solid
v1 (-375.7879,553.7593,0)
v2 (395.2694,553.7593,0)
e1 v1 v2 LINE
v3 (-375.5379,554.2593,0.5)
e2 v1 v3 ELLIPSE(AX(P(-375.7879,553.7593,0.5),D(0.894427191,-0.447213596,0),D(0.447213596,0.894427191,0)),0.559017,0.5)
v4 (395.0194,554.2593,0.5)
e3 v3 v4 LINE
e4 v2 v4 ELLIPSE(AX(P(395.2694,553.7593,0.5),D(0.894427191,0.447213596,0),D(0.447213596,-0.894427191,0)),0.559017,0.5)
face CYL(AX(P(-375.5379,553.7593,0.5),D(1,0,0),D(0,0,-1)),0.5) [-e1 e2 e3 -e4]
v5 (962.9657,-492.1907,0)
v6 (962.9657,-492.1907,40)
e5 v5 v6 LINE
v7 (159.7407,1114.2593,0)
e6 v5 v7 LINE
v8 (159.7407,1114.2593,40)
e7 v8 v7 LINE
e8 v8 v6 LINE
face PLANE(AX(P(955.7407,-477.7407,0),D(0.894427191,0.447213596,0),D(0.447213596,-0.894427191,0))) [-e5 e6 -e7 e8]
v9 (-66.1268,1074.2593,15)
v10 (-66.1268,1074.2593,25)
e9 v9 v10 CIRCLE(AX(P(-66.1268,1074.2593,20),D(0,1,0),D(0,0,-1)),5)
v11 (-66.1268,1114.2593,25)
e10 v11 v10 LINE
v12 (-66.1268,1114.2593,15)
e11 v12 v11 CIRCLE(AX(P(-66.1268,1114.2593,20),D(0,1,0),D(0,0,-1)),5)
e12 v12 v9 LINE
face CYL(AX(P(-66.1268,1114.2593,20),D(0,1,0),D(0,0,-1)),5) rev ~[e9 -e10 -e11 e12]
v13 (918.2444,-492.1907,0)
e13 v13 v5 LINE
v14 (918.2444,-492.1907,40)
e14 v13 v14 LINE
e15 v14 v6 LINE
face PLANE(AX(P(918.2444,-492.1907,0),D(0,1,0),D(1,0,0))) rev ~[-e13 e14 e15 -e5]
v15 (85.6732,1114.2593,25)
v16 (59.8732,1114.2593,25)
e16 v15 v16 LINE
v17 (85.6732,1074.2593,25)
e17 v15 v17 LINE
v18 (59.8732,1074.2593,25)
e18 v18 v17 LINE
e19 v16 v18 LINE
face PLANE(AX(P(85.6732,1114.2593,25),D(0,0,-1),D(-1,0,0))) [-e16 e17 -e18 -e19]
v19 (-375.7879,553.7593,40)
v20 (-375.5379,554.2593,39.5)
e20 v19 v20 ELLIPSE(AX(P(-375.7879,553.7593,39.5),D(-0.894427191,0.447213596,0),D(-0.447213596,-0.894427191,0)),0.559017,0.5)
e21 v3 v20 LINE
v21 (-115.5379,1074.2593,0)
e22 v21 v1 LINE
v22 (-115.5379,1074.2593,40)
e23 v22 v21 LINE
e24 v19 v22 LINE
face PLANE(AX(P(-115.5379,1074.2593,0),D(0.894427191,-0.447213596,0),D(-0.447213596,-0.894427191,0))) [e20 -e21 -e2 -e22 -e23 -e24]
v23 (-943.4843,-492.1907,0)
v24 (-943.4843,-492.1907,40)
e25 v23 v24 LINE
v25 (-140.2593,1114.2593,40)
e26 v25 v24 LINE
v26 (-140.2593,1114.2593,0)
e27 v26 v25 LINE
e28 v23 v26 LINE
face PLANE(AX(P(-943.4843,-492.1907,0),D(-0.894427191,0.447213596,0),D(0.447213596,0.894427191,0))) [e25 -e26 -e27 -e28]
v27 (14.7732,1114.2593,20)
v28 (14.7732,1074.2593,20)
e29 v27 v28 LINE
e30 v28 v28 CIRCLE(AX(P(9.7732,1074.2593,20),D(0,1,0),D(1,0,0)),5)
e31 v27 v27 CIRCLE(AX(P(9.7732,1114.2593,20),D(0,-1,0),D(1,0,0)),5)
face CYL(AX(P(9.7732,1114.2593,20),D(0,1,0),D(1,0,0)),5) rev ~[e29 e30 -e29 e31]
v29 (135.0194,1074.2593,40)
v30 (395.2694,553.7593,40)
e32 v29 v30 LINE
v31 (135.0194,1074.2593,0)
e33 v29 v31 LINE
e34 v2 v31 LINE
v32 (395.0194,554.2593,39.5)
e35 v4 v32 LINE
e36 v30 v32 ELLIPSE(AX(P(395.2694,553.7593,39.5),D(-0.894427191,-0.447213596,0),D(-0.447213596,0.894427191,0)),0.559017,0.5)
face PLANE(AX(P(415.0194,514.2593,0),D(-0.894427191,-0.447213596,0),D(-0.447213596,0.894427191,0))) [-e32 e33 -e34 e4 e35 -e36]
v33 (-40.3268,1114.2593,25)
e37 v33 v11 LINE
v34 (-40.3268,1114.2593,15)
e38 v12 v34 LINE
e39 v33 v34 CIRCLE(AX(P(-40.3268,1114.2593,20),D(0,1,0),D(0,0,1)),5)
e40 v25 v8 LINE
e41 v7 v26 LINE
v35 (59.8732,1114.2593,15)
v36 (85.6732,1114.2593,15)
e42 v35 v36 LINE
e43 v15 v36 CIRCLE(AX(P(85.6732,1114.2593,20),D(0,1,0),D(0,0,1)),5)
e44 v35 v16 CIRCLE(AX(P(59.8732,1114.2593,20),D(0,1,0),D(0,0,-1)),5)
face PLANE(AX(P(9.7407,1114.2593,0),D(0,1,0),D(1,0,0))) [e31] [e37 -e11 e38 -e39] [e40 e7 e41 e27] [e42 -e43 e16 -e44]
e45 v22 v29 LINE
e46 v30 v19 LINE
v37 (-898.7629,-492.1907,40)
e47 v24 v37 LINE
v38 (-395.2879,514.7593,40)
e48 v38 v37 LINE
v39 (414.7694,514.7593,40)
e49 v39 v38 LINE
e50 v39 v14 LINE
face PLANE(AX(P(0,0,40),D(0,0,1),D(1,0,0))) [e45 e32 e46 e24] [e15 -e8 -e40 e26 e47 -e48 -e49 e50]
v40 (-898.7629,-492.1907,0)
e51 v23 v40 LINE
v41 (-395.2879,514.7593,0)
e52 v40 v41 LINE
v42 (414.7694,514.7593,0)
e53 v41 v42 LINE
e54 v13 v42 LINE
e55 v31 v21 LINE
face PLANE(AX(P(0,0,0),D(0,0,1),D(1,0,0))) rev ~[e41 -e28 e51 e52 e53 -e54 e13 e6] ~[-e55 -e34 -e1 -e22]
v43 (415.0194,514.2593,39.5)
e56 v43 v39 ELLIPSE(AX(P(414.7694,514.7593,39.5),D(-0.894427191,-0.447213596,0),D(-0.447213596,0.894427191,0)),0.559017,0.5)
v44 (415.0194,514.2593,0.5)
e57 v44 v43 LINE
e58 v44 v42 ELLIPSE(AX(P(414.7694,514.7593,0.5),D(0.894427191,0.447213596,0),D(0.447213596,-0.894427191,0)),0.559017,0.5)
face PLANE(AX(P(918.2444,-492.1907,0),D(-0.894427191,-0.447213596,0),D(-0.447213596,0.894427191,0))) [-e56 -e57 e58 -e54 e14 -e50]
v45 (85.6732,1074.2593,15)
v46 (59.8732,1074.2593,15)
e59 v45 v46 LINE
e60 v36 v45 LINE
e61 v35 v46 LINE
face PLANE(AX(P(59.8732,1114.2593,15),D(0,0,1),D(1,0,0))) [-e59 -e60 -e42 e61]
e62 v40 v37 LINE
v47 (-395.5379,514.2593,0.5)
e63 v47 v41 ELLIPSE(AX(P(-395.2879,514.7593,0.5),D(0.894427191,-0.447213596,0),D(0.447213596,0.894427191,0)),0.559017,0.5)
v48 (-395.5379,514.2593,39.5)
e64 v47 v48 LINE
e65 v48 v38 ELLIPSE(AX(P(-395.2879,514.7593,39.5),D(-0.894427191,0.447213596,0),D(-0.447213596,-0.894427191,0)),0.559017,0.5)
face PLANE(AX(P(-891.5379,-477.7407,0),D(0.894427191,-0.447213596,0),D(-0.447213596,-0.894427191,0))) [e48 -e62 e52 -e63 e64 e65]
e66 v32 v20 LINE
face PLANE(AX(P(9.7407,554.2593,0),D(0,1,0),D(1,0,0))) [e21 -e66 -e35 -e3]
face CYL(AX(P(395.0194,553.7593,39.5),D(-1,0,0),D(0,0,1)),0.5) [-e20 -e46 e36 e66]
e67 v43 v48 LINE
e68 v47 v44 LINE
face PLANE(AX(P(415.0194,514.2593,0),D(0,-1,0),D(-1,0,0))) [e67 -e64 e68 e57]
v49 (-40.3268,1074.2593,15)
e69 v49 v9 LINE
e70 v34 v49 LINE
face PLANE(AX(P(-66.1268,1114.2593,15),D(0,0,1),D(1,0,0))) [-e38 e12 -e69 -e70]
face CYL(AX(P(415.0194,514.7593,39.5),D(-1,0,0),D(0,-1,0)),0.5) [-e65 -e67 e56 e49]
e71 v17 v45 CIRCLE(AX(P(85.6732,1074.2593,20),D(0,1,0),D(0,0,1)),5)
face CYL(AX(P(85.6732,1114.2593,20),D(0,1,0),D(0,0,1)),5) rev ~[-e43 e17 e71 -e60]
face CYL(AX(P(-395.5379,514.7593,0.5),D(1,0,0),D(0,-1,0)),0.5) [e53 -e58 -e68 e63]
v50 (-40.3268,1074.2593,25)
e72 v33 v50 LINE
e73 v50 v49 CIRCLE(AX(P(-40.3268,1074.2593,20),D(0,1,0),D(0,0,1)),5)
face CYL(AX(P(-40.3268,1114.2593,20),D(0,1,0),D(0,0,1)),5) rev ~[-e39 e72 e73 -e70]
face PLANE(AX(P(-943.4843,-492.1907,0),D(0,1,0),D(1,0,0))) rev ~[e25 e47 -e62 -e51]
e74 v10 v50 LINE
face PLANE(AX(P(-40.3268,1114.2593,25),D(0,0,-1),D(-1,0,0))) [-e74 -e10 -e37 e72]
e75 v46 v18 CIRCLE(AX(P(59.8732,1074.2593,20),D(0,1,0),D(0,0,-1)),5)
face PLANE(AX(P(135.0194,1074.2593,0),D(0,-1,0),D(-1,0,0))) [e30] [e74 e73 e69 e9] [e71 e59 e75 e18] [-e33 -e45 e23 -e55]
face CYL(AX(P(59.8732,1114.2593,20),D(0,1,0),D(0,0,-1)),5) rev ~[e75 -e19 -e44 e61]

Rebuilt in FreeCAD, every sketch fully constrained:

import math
import FreeCAD as App
import Part
import Sketcher
from FreeCAD import Vector


def edges_at(feature, points):
    """Names of the edges that pass closest to the given points."""
    edges = feature.Shape.Edges
    near = lambda p: min(range(len(edges)), key=lambda i: edges[i].distToShape(Part.Vertex(*p))[0])
    return sorted({f"Edge{near(p) + 1}" for p in points})


def add_polygon(sketch, points):
    """Adds a closed chain of lines whose ends are joined by coincident constraints."""
    first, n = sketch.GeometryCount, len(points)
    for a, b in zip(points, points[1:] + points[:1]):
        sketch.addGeometry(Part.LineSegment(App.Vector(*a, 0), App.Vector(*b, 0)), False)
    for i in range(n):
        sketch.addConstraint(Sketcher.Constraint("Coincident", first + i, 2, first + (i + 1) % n, 1))

doc = App.newDocument("Part")
params = doc.addObject("Spreadsheet::Sheet", "Params")
for row, (alias, value) in enumerate([
    ("sketch1_width", "300 mm"),
    ("pad1_length", "40 mm"),
    ("fillet_radius", "0.5 mm"),
    ("fillet2_radius", "0.5 mm"),
    ("pad2_length", "40 mm"),
    ("fillet3_radius", "0.5 mm"),
    ("fillet4_radius", "0.5 mm"),
    ("sketch3_diameter", "5 mm"),
    ("pocket1_length", "50 mm"),
    ("sketch4_radius", "5 mm"),
    ("sketch4_width", "25.8 mm"),
    ("pocket2_length", "50 mm"),
    ("sketch5_width", "300 mm"),
    ("pad3_length", "40 mm"),
    ("pad4_length", "40 mm"),
    ("pad5_length", "40 mm"),
    ("pad6_length", "40 mm"),
    ("pad7_length", "40 mm"),
    ("sketch10_diameter", "10 mm"),
    ("pocket3_length", "40 mm"),
    ("sketch11_radius", "5 mm"),
    ("sketch11_width", "25.8 mm"),
    ("pocket4_length", "50 mm"),
], start=1):
    params.set(f"A{row}", alias)
    params.set(f"B{row}", "=" + value)
    params.setAlias(f"B{row}", alias)

body = doc.addObject("PartDesign::Body", "Body")

# Sketch on XY plane
sketch1 = body.newObject("Sketcher::SketchObject", "Sketch")
sketch1.AttachmentSupport = (doc.getObject("XY_Plane"), [""])
sketch1.MapMode = "FlatFace"
add_polygon(sketch1, [(160, 1114), (-140, 1114), (-680, 34), (-636, 34), (-116, 1074), (135, 1074), (911, -478), (956, -478)])  # lines 0-7
sketch1.addConstraint([
    Sketcher.Constraint("Horizontal", 0),
    Sketcher.Constraint("Horizontal", 2),
    Sketcher.Constraint("Horizontal", 4),
    Sketcher.Constraint("Horizontal", 6),
    Sketcher.Constraint("Parallel", 1, 3),
    Sketcher.Constraint("Parallel", 5, 7),
    Sketcher.Constraint("Equal", 2, 6),
    Sketcher.Constraint("DistanceY", 3, 2, 0, 2, 40.0),
    Sketcher.Constraint("DistanceY", 5, 2, 2, 2, 512.0),
    Sketcher.Constraint("DistanceX", 0, 2, 0, 1, 300.0),
    Sketcher.Constraint("DistanceX", 1, 2, 0, 2, 540.0),
    Sketcher.Constraint("DistanceY", 1, 2, 0, 2, 1080.0),
    Sketcher.Constraint("DistanceX", 4, 2, 5, 2, 776.0),
    Sketcher.Constraint("DistanceX", 2, 1, 2, 2, 44.7214),
    Sketcher.Constraint("DistanceX", 2, 2, -1, 1, 635.538),
    Sketcher.Constraint("DistanceY", -1, 1, 0, 2, 1114.2593),
])
sketch1.setExpression("Constraints[17]", "Params.sketch1_width")
pad1 = body.newObject("PartDesign::Pad", "Pad")
pad1.Profile = sketch1
pad1.setExpression("Length", "Params.pad1_length")
doc.recompute()

fillet = body.newObject("PartDesign::Fillet", "Fillet")
fillet.Base = (pad1, edges_at(pad1, [
    (-245.538, 814.259, 40),
    (-515.538, 274.259, 40),
    (72.38, 1074.259, 40),
    (265.019, 814.259, 40),
    (557.741, 318.259, 40),
    (-65.259, 1114.259, 40),
    (-410.259, 574.259, 40),
]))
fillet.setExpression("Radius", "Params.fillet_radius")
doc.recompute()

fillet2 = body.newObject("PartDesign::Fillet", "Fillet001")
fillet2.Base = (fillet, edges_at(fillet, [
    (-410.259, 574.259, 0),
    (-245.538, 814.259, 0),
    (-515.538, 274.259, 0),
    (72.38, 1074.259, 0),
    (84.741, 1114.259, 0),
    (557.741, 318.259, 0),
    (265.019, 814.259, 0),
]))
fillet2.setExpression("Radius", "Params.fillet2_radius")

# Sketch on XY plane
sketch2 = body.newObject("Sketcher::SketchObject", "Sketch001")
sketch2.AttachmentSupport = (doc.getObject("XY_Plane"), [""])
sketch2.MapMode = "FlatFace"
add_polygon(sketch2, [(-396, 514), (415, 514), (395, 554), (-376, 554)])  # lines 0-3
sketch2.addConstraint([
    Sketcher.Constraint("Horizontal", 0),
    Sketcher.Constraint("Horizontal", 2),
    Sketcher.Constraint("Equal", 1, 3),
    Sketcher.Constraint("DistanceY", 0, 2, 1, 2, 40.0),
    Sketcher.Constraint("DistanceX", 1, 2, 0, 2, 20.0),
    Sketcher.Constraint("DistanceX", 0, 1, 0, 2, 810.5573),
    Sketcher.Constraint("DistanceX", 2, 2, -1, 1, 375.538),
    Sketcher.Constraint("DistanceY", -1, 1, 0, 2, 514.2593),
])
pad2 = body.newObject("PartDesign::Pad", "Pad001")
pad2.Profile = sketch2
pad2.setExpression("Length", "Params.pad2_length")
doc.recompute()

fillet3 = body.newObject("PartDesign::Fillet", "Fillet002")
fillet3.Base = (pad2, edges_at(pad2, [(9.741, 554.259, 0), (212.38, 514.259, 0), (212.38, 514.259, 40)]))
fillet3.setExpression("Radius", "Params.fillet3_radius")
doc.recompute()

fillet4 = body.newObject("PartDesign::Fillet", "Fillet003")
fillet4.Base = (fillet3, edges_at(fillet3, [(9.741, 554.259, 40)]))
fillet4.setExpression("Radius", "Params.fillet4_radius")

# Sketch on XZ plane
sketch3 = body.newObject("Sketcher::SketchObject", "Sketch002")
sketch3.AttachmentSupport = (doc.getObject("XZ_Plane"), [""])
sketch3.MapMode = "FlatFace"
sketch3.AttachmentOffset = App.Placement(Vector(0, 0, -1114.2593), App.Rotation())
sketch3.addGeometry(Part.Circle(Vector(10.6, 19.6, 0), Vector(0, 0, 1), 2.5), False)
sketch3.addConstraint([
    Sketcher.Constraint("Diameter", 0, 5.0),
    Sketcher.Constraint("DistanceX", -1, 1, 0, 3, 10.6076),
    Sketcher.Constraint("DistanceY", -1, 1, 0, 3, 19.6154),
])
sketch3.setExpression("Constraints[0]", "Params.sketch3_diameter")
pocket1 = body.newObject("PartDesign::Pocket", "Pocket")
pocket1.Profile = sketch3
pocket1.setExpression("Length", "Params.pocket1_length")
pocket1.Reversed = True

# Sketch on XZ plane
sketch4 = body.newObject("Sketcher::SketchObject", "Sketch003")
sketch4.AttachmentSupport = (doc.getObject("XZ_Plane"), [""])
sketch4.MapMode = "FlatFace"
sketch4.AttachmentOffset = App.Placement(Vector(0, 0, -1114.2593), App.Rotation())
sketch4.addGeometry([
    Part.ArcOfCircle(Part.Circle(Vector(87, 20, 0), Vector(0, 0, 1), 5), math.radians(-90), math.radians(90)),  # 0
    Part.LineSegment(Vector(87, 15, 0), Vector(61, 15, 0)),  # 1
    Part.ArcOfCircle(Part.Circle(Vector(61, 20, 0), Vector(0, 0, 1), 5), math.radians(90), math.radians(270)),  # 2
    Part.LineSegment(Vector(61, 25, 0), Vector(87, 25, 0)),  # 3
    Part.LineSegment(Vector(-65, 25, 0), Vector(-39, 25, 0)),  # 4
    Part.ArcOfCircle(Part.Circle(Vector(-39, 20, 0), Vector(0, 0, 1), 5), math.radians(-90), math.radians(90)),  # 5
    Part.LineSegment(Vector(-39, 15, 0), Vector(-65, 15, 0)),  # 6
    Part.ArcOfCircle(Part.Circle(Vector(-65, 20, 0), Vector(0, 0, 1), 5), math.radians(90), math.radians(270)),  # 7
], False)
sketch4.addConstraint([
    Sketcher.Constraint("Tangent", 0, 1, 1, 1),
    Sketcher.Constraint("Tangent", 1, 2, 2, 2),
    Sketcher.Constraint("Tangent", 2, 1, 3, 1),
    Sketcher.Constraint("Tangent", 3, 2, 0, 2),
    Sketcher.Constraint("Tangent", 4, 2, 5, 2),
    Sketcher.Constraint("Tangent", 5, 1, 6, 1),
    Sketcher.Constraint("Tangent", 6, 2, 7, 2),
    Sketcher.Constraint("Tangent", 7, 1, 4, 1),
    Sketcher.Constraint("Horizontal", 1),
    Sketcher.Constraint("Horizontal", 3),
    Sketcher.Constraint("Horizontal", 4),
    Sketcher.Constraint("Horizontal", 6),
    Sketcher.Constraint("Equal", 2, 5),
    Sketcher.Constraint("Horizontal", 2, 3, 5, 3),
    Sketcher.Constraint("Equal", 3, 4),
    Sketcher.Constraint("Radius", 0, 5.0),
    Sketcher.Constraint("DistanceX", 1, 2, 1, 1, 25.8),
    Sketcher.Constraint("DistanceY", -1, 1, 0, 3, 20.0),
    Sketcher.Constraint("DistanceX", 5, 3, 0, 3, 126.0),
    Sketcher.Constraint("DistanceX", -1, 1, 0, 3, 86.5076),
])
sketch4.setExpression("Constraints[15]", "Params.sketch4_radius")
sketch4.setExpression("Constraints[16]", "Params.sketch4_width")
pocket2 = body.newObject("PartDesign::Pocket", "Pocket001")
pocket2.Profile = sketch4
pocket2.setExpression("Length", "Params.pocket2_length")
pocket2.Reversed = True

# Sketch on XY plane
sketch5 = body.newObject("Sketcher::SketchObject", "Sketch004")
sketch5.AttachmentSupport = (doc.getObject("XY_Plane"), [""])
sketch5.MapMode = "FlatFace"
add_polygon(sketch5, [(160, 1114), (-140, 1114), (-680, 34), (-636, 34), (-116, 1074), (135, 1074), (911, -478), (956, -478)])  # lines 0-7
sketch5.addConstraint([
    Sketcher.Constraint("Horizontal", 0),
    Sketcher.Constraint("Horizontal", 2),
    Sketcher.Constraint("Horizontal", 4),
    Sketcher.Constraint("Horizontal", 6),
    Sketcher.Constraint("Parallel", 1, 3),
    Sketcher.Constraint("Parallel", 5, 7),
    Sketcher.Constraint("Equal", 2, 6),
    Sketcher.Constraint("DistanceY", 3, 2, 0, 2, 40.0),
    Sketcher.Constraint("DistanceY", 5, 2, 2, 2, 512.0),
    Sketcher.Constraint("DistanceX", 0, 2, 0, 1, 300.0),
    Sketcher.Constraint("DistanceX", 1, 2, 0, 2, 540.0),
    Sketcher.Constraint("DistanceY", 1, 2, 0, 2, 1080.0),
    Sketcher.Constraint("DistanceX", 4, 2, 5, 2, 776.0),
    Sketcher.Constraint("DistanceX", 2, 1, 2, 2, 44.7214),
    Sketcher.Constraint("DistanceX", 2, 2, -1, 1, 635.538),
    Sketcher.Constraint("DistanceY", -1, 1, 0, 2, 1114.2593),
])
sketch5.setExpression("Constraints[17]", "Params.sketch5_width")
pad3 = body.newObject("PartDesign::Pad", "Pad002")
pad3.Profile = sketch5
pad3.setExpression("Length", "Params.pad3_length")

# Sketch on XY plane
sketch6 = body.newObject("Sketcher::SketchObject", "Sketch005")
sketch6.AttachmentSupport = (doc.getObject("XY_Plane"), [""])
sketch6.MapMode = "FlatFace"
add_polygon(sketch6, [(-636, 34), (-680, 34), (-830, -266), (-786, -266)])  # lines 0-3
sketch6.addConstraint([
    Sketcher.Constraint("Horizontal", 0),
    Sketcher.Constraint("Horizontal", 2),
    Sketcher.Constraint("Parallel", 1, 3),
    Sketcher.Constraint("DistanceX", 1, 2, 0, 2, 150.0),
    Sketcher.Constraint("DistanceY", 1, 2, 0, 2, 300.0),
    Sketcher.Constraint("DistanceX", 0, 2, 0, 1, 44.7214),
    Sketcher.Constraint("DistanceX", 2, 2, -1, 1, 785.538),
    Sketcher.Constraint("DistanceY", -1, 1, 0, 2, 34.2593),
])
pad4 = body.newObject("PartDesign::Pad", "Pad003")
pad4.Profile = sketch6
pad4.setExpression("Length", "Params.pad4_length")

# Sketch on XY plane
sketch7 = body.newObject("Sketcher::SketchObject", "Sketch006")
sketch7.AttachmentSupport = (doc.getObject("XY_Plane"), [""])
sketch7.MapMode = "FlatFace"
add_polygon(sketch7, [(-786, -266), (-830, -266), (-936, -478), (-892, -478)])  # lines 0-3
sketch7.addConstraint([
    Sketcher.Constraint("Horizontal", 0),
    Sketcher.Constraint("Horizontal", 2),
    Sketcher.Constraint("Parallel", 1, 3),
    Sketcher.Constraint("DistanceX", 1, 2, 0, 2, 106.0),
    Sketcher.Constraint("DistanceY", 1, 2, 0, 2, 212.0),
    Sketcher.Constraint("DistanceX", 0, 2, 0, 1, 44.7214),
    Sketcher.Constraint("DistanceX", 2, 2, -1, 1, 891.538),
    Sketcher.Constraint("DistanceY", 0, 2, -1, 1, 265.7407),
])
pad5 = body.newObject("PartDesign::Pad", "Pad004")
pad5.Profile = sketch7
pad5.setExpression("Length", "Params.pad5_length")

# Sketch on XY plane
sketch8 = body.newObject("Sketcher::SketchObject", "Sketch007")
sketch8.AttachmentSupport = (doc.getObject("XY_Plane"), [""])
sketch8.MapMode = "FlatFace"
add_polygon(sketch8, [(-892, -478), (-936, -478), (-943, -492), (-899, -492)])  # lines 0-3
sketch8.addConstraint([
    Sketcher.Constraint("Horizontal", 0),
    Sketcher.Constraint("Horizontal", 2),
    Sketcher.Constraint("Parallel", 1, 3),
    Sketcher.Constraint("DistanceY", 1, 2, 0, 2, 14.45),
    Sketcher.Constraint("DistanceX", 0, 2, 0, 1, 44.7214),
    Sketcher.Constraint("DistanceX", 2, 2, -1, 1, 898.763),
    Sketcher.Constraint("DistanceX", 3, 2, -1, 1, 891.538),
    Sketcher.Constraint("DistanceY", 0, 2, -1, 1, 477.7407),
])
pad6 = body.newObject("PartDesign::Pad", "Pad005")
pad6.Profile = sketch8
pad6.setExpression("Length", "Params.pad6_length")

# Sketch on XY plane
sketch9 = body.newObject("Sketcher::SketchObject", "Sketch008")
sketch9.AttachmentSupport = (doc.getObject("XY_Plane"), [""])
sketch9.MapMode = "FlatFace"
add_polygon(sketch9, [(963, -492), (956, -478), (911, -478), (918, -492)])  # lines 0-3
sketch9.addConstraint([
    Sketcher.Constraint("Horizontal", 1),
    Sketcher.Constraint("Horizontal", 3),
    Sketcher.Constraint("Parallel", 0, 2),
    Sketcher.Constraint("DistanceY", 2, 2, 1, 2, 14.45),
    Sketcher.Constraint("DistanceX", 1, 2, 1, 1, 44.7213),
    Sketcher.Constraint("DistanceX", 1, 2, 2, 2, 7.225),
    Sketcher.Constraint("DistanceX", -1, 1, 0, 2, 955.7407),
    Sketcher.Constraint("DistanceY", 0, 2, -1, 1, 477.7407),
])
pad7 = body.newObject("PartDesign::Pad", "Pad006")
pad7.Profile = sketch9
pad7.setExpression("Length", "Params.pad7_length")

# Sketch on XZ plane
sketch10 = body.newObject("Sketcher::SketchObject", "Sketch009")
sketch10.AttachmentSupport = (doc.getObject("XZ_Plane"), [""])
sketch10.MapMode = "FlatFace"
sketch10.AttachmentOffset = App.Placement(Vector(0, 0, -1114.2593), App.Rotation())
sketch10.addGeometry(Part.Circle(Vector(10, 20, 0), Vector(0, 0, 1), 5), False)
sketch10.addConstraint([
    Sketcher.Constraint("Diameter", 0, 10.0),
    Sketcher.Constraint("DistanceY", -1, 1, 0, 3, 20.0),
    Sketcher.Constraint("DistanceX", -1, 1, 0, 3, 9.7732),
])
sketch10.setExpression("Constraints[0]", "Params.sketch10_diameter")
pocket3 = body.newObject("PartDesign::Pocket", "Pocket002")
pocket3.Profile = sketch10
pocket3.setExpression("Length", "Params.pocket3_length")
pocket3.Reversed = True

# Sketch on XZ plane
sketch11 = body.newObject("Sketcher::SketchObject", "Sketch010")
sketch11.AttachmentSupport = (doc.getObject("XZ_Plane"), [""])
sketch11.MapMode = "FlatFace"
sketch11.AttachmentOffset = App.Placement(Vector(0, 0, -1114.2593), App.Rotation())
sketch11.addGeometry([
    Part.LineSegment(Vector(60, 25, 0), Vector(86, 25, 0)),  # 0
    Part.ArcOfCircle(Part.Circle(Vector(86, 20, 0), Vector(0, 0, 1), 5), math.radians(-90), math.radians(90)),  # 1
    Part.LineSegment(Vector(86, 15, 0), Vector(60, 15, 0)),  # 2
    Part.ArcOfCircle(Part.Circle(Vector(60, 20, 0), Vector(0, 0, 1), 5), math.radians(90), math.radians(270)),  # 3
    Part.LineSegment(Vector(-66, 25, 0), Vector(-40, 25, 0)),  # 4
    Part.ArcOfCircle(Part.Circle(Vector(-40, 20, 0), Vector(0, 0, 1), 5), math.radians(-90), math.radians(90)),  # 5
    Part.LineSegment(Vector(-40, 15, 0), Vector(-66, 15, 0)),  # 6
    Part.ArcOfCircle(Part.Circle(Vector(-66, 20, 0), Vector(0, 0, 1), 5), math.radians(90), math.radians(270)),  # 7
], False)
sketch11.addConstraint([
    Sketcher.Constraint("Tangent", 0, 2, 1, 2),
    Sketcher.Constraint("Tangent", 1, 1, 2, 1),
    Sketcher.Constraint("Tangent", 2, 2, 3, 2),
    Sketcher.Constraint("Tangent", 3, 1, 0, 1),
    Sketcher.Constraint("Tangent", 4, 2, 5, 2),
    Sketcher.Constraint("Tangent", 5, 1, 6, 1),
    Sketcher.Constraint("Tangent", 6, 2, 7, 2),
    Sketcher.Constraint("Tangent", 7, 1, 4, 1),
    Sketcher.Constraint("Horizontal", 0),
    Sketcher.Constraint("Horizontal", 2),
    Sketcher.Constraint("Horizontal", 4),
    Sketcher.Constraint("Horizontal", 6),
    Sketcher.Constraint("Equal", 3, 5),
    Sketcher.Constraint("Horizontal", 3, 3, 5, 3),
    Sketcher.Constraint("Equal", 2, 4),
    Sketcher.Constraint("Radius", 1, 5.0),
    Sketcher.Constraint("DistanceX", 0, 1, 0, 2, 25.8),
    Sketcher.Constraint("DistanceY", -1, 1, 1, 3, 20.0),
    Sketcher.Constraint("DistanceX", 5, 3, 1, 3, 126.0),
    Sketcher.Constraint("DistanceX", -1, 1, 1, 3, 85.6732),
])
sketch11.setExpression("Constraints[15]", "Params.sketch11_radius")
sketch11.setExpression("Constraints[16]", "Params.sketch11_width")
pocket4 = body.newObject("PartDesign::Pocket", "Pocket003")
pocket4.Profile = sketch11
pocket4.setExpression("Length", "Params.pocket4_length")
pocket4.Reversed = True

doc.recompute()
